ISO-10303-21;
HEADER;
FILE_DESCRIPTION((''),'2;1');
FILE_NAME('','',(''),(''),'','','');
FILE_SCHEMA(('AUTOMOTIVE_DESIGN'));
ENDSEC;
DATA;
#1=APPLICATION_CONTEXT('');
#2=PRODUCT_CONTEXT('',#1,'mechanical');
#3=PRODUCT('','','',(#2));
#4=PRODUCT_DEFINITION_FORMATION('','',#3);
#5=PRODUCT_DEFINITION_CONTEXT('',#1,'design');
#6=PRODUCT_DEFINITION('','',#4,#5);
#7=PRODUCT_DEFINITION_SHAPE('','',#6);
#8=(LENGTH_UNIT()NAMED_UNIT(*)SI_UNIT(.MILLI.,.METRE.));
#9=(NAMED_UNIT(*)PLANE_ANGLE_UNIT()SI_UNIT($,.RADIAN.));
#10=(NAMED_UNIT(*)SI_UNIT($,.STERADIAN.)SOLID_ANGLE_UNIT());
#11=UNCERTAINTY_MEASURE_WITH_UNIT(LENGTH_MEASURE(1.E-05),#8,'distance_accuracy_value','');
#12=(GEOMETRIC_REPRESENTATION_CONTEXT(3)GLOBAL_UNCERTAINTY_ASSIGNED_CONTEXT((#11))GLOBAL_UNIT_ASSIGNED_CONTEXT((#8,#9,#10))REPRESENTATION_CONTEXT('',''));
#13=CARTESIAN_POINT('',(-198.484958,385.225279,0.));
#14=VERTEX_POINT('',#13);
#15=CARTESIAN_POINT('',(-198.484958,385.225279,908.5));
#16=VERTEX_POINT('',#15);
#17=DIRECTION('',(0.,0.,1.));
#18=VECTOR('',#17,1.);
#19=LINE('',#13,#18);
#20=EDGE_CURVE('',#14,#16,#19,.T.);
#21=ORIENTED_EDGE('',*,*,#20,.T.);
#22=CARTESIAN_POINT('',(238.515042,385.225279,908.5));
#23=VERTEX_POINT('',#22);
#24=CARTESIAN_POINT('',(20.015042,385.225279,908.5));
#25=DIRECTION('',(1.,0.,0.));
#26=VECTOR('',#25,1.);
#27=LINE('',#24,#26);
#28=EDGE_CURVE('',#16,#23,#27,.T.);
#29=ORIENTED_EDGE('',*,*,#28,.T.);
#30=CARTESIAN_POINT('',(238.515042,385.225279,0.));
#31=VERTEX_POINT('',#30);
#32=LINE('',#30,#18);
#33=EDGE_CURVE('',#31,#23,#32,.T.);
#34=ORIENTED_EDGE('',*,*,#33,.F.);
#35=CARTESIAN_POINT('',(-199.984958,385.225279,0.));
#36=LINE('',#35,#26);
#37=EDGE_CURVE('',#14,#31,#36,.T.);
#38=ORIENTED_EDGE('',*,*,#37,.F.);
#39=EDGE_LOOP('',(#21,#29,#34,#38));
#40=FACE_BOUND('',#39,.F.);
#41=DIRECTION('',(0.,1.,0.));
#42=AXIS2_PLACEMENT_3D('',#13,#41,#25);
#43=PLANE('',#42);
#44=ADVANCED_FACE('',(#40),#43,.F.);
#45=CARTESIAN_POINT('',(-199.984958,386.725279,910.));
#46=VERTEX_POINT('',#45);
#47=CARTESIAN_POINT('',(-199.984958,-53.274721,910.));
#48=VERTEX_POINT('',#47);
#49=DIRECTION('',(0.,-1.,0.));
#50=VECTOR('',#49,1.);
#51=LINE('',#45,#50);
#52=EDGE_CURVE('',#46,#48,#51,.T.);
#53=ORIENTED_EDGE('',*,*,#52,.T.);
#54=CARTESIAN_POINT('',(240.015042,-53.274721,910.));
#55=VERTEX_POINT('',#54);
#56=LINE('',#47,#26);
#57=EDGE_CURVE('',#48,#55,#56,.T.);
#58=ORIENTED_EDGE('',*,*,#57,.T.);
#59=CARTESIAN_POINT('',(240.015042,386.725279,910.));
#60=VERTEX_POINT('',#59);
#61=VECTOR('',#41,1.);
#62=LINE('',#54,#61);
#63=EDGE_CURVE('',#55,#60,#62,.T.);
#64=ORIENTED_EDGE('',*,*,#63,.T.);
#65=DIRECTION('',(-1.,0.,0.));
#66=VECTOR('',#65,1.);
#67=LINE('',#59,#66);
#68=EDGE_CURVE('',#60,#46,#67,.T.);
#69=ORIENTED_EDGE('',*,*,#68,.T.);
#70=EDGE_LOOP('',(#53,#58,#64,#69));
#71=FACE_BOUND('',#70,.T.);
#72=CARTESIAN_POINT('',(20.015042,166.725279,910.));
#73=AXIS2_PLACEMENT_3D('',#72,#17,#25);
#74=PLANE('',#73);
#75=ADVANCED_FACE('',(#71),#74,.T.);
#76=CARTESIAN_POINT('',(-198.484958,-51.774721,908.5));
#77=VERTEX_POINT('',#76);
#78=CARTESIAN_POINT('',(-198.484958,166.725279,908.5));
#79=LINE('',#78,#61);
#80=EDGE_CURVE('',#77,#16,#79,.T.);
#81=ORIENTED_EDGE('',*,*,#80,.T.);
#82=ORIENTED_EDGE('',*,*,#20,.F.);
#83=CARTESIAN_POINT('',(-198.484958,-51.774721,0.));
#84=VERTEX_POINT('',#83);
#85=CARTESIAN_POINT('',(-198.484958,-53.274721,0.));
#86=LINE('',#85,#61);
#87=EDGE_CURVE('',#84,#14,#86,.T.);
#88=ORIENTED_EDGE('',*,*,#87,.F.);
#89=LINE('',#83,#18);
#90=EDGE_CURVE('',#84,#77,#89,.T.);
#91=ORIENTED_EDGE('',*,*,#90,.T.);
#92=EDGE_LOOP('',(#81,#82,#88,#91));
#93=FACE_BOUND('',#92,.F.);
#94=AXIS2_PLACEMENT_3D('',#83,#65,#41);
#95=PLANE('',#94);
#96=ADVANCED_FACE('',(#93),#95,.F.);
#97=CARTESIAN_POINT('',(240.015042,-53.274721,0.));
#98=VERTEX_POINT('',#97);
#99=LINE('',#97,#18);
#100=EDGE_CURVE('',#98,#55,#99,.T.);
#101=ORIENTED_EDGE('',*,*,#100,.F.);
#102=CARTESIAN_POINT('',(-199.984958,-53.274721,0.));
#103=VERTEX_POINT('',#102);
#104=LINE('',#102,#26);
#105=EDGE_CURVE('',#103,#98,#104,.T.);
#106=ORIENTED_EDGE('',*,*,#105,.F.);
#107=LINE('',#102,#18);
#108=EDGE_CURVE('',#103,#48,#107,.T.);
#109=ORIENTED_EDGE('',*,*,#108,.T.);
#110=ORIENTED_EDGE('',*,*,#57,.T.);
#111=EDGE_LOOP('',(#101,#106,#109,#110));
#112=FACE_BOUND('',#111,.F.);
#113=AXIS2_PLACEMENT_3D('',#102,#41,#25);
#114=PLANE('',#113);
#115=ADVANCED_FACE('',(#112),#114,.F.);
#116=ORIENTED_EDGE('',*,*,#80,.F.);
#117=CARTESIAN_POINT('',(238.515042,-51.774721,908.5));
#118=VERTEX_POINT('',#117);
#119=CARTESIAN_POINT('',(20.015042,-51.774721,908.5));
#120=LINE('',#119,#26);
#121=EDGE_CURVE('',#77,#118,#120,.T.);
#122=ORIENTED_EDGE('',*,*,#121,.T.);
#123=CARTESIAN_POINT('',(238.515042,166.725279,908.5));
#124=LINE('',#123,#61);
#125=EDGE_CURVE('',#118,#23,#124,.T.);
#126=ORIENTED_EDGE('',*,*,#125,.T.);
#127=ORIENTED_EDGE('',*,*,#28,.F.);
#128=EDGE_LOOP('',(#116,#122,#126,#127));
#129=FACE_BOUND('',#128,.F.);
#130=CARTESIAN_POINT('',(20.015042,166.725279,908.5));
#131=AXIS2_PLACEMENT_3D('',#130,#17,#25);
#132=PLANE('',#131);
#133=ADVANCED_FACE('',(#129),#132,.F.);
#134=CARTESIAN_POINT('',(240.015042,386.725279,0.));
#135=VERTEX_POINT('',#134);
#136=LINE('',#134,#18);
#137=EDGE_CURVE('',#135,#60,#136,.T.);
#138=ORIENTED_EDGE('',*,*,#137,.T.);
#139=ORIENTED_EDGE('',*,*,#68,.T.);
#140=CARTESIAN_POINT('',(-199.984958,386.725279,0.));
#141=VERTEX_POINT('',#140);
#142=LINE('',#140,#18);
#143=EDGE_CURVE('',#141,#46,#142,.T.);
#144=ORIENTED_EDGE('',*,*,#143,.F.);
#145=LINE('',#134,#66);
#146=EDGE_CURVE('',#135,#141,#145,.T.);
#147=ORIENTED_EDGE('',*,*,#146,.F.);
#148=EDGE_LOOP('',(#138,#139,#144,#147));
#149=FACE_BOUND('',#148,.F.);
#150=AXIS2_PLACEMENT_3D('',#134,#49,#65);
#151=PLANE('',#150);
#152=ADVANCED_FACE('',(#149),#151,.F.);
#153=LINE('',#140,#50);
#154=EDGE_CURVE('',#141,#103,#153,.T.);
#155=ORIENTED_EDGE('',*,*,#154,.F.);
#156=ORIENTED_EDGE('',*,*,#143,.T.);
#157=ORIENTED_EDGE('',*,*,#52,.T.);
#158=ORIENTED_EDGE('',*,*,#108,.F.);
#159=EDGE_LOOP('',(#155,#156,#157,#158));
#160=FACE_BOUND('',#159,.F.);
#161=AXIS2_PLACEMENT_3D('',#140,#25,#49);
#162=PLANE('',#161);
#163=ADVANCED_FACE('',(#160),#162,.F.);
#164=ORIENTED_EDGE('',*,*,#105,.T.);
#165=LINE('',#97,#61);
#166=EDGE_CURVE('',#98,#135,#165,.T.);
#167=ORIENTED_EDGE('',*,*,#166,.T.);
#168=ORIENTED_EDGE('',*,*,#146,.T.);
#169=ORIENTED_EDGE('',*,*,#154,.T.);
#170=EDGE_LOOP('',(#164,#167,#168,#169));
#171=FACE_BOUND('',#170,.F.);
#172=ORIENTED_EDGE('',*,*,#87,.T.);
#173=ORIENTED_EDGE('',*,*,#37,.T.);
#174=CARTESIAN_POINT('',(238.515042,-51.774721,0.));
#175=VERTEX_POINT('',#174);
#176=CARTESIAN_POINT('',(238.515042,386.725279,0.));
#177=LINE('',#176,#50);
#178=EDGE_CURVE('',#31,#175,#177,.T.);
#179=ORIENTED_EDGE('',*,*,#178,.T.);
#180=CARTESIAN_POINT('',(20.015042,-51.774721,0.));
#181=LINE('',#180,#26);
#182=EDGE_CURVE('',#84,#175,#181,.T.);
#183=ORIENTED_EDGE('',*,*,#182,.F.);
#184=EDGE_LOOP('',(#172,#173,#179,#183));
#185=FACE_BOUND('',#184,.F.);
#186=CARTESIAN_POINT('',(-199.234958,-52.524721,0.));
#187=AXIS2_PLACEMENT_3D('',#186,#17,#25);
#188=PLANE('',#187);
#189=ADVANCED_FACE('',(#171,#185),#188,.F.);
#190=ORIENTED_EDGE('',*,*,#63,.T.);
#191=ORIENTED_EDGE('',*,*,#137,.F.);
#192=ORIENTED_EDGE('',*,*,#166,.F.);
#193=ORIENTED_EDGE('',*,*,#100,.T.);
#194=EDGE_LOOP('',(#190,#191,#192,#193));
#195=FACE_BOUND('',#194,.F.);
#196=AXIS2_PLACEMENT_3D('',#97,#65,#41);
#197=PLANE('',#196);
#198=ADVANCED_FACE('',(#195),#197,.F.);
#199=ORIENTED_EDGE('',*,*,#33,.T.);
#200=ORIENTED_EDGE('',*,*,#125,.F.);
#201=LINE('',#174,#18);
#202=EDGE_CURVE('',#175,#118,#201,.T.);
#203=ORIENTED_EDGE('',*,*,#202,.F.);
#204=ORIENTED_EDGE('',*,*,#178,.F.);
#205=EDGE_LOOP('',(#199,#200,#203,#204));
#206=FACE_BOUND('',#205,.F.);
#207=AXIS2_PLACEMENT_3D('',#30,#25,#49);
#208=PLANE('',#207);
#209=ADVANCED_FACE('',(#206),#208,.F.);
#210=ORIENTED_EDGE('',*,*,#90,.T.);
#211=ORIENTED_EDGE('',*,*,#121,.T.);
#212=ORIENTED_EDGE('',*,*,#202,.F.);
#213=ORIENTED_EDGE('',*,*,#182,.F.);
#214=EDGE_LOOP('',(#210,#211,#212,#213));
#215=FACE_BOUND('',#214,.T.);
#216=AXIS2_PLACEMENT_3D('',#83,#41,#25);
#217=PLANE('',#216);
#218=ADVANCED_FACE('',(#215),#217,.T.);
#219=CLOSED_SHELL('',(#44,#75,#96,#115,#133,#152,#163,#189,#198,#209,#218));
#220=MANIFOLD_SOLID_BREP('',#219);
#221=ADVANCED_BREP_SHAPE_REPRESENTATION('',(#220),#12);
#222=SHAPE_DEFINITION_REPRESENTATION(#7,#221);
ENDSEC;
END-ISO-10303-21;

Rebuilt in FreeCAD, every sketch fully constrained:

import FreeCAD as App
import Part
import Sketcher
from FreeCAD import Vector


def add_polygon(sketch, points):
    """Adds a closed chain of lines whose ends are joined by coincident constraints."""
    first, n = sketch.GeometryCount, len(points)
    for a, b in zip(points, points[1:] + points[:1]):
        sketch.addGeometry(Part.LineSegment(App.Vector(*a, 0), App.Vector(*b, 0)), False)
    for i in range(n):
        sketch.addConstraint(Sketcher.Constraint("Coincident", first + i, 2, first + (i + 1) % n, 1))

doc = App.newDocument("Part")
body = doc.addObject("PartDesign::Body", "Body")

# Sketch on XY plane
sketch1 = body.newObject("Sketcher::SketchObject", "Sketch")
sketch1.AttachmentSupport = (doc.getObject("XY_Plane"), [""])
sketch1.MapMode = "FlatFace"
add_polygon(sketch1, [(-200, -53), (240, -53), (240, 387), (-200, 387)])  # lines 0-3
add_polygon(sketch1, [(-198, -52), (-198, 385), (239, 385), (239, -52)])  # lines 4-7
sketch1.addConstraint(Sketcher.Constraint("Horizontal", 0))
sketch1.addConstraint(Sketcher.Constraint("Vertical", 1))
sketch1.addConstraint(Sketcher.Constraint("Horizontal", 2))
sketch1.addConstraint(Sketcher.Constraint("Vertical", 3))
sketch1.addConstraint(Sketcher.Constraint("Vertical", 4))
sketch1.addConstraint(Sketcher.Constraint("Horizontal", 5))
sketch1.addConstraint(Sketcher.Constraint("Vertical", 6))
sketch1.addConstraint(Sketcher.Constraint("Horizontal", 7))
sketch1.addConstraint(Sketcher.Constraint("Equal", 2, 1))
sketch1.addConstraint(Sketcher.Constraint("Equal", 7, 4))
sketch1.addConstraint(Sketcher.Constraint("DistanceX", 0, 1, 0, 2, 440.0))
sketch1.addConstraint(Sketcher.Constraint("DistanceX", 5, 1, 5, 2, 437.0))
sketch1.addConstraint(Sketcher.Constraint("DistanceX", 2, 2, 4, 2, 1.5))
sketch1.addConstraint(Sketcher.Constraint("DistanceY", 4, 2, 2, 2, 1.5))
sketch1.addConstraint(Sketcher.Constraint("DistanceX", -1, 1, 0, 2, 240.015042))
sketch1.addConstraint(Sketcher.Constraint("DistanceY", 0, 2, -1, 1, 53.274721))
pad1 = body.newObject("PartDesign::Pad", "Pad")
pad1.Profile = sketch1
pad1.Length = 910

# Sketch on XY plane
sketch2 = body.newObject("Sketcher::SketchObject", "Sketch001")
sketch2.AttachmentSupport = (doc.getObject("XY_Plane"), [""])
sketch2.MapMode = "FlatFace"
sketch2.AttachmentOffset = App.Placement(Vector(0, 0, 910), App.Rotation())
add_polygon(sketch2, [(-198, 385), (-198, -52), (239, -52), (239, 385)])  # lines 0-3
sketch2.addConstraint(Sketcher.Constraint("Vertical", 0))
sketch2.addConstraint(Sketcher.Constraint("Horizontal", 1))
sketch2.addConstraint(Sketcher.Constraint("Vertical", 2))
sketch2.addConstraint(Sketcher.Constraint("Horizontal", 3))
sketch2.addConstraint(Sketcher.Constraint("Equal", 3, 0))
sketch2.addConstraint(Sketcher.Constraint("DistanceX", 1, 1, 1, 2, 437.0))
sketch2.addConstraint(Sketcher.Constraint("DistanceX", 0, 2, -1, 1, 198.484958))
sketch2.addConstraint(Sketcher.Constraint("DistanceY", 0, 2, -1, 1, 51.774721))
pad2 = body.newObject("PartDesign::Pad", "Pad001")
pad2.Profile = sketch2
pad2.Length = 1.5
pad2.Reversed = True

doc.recompute()
